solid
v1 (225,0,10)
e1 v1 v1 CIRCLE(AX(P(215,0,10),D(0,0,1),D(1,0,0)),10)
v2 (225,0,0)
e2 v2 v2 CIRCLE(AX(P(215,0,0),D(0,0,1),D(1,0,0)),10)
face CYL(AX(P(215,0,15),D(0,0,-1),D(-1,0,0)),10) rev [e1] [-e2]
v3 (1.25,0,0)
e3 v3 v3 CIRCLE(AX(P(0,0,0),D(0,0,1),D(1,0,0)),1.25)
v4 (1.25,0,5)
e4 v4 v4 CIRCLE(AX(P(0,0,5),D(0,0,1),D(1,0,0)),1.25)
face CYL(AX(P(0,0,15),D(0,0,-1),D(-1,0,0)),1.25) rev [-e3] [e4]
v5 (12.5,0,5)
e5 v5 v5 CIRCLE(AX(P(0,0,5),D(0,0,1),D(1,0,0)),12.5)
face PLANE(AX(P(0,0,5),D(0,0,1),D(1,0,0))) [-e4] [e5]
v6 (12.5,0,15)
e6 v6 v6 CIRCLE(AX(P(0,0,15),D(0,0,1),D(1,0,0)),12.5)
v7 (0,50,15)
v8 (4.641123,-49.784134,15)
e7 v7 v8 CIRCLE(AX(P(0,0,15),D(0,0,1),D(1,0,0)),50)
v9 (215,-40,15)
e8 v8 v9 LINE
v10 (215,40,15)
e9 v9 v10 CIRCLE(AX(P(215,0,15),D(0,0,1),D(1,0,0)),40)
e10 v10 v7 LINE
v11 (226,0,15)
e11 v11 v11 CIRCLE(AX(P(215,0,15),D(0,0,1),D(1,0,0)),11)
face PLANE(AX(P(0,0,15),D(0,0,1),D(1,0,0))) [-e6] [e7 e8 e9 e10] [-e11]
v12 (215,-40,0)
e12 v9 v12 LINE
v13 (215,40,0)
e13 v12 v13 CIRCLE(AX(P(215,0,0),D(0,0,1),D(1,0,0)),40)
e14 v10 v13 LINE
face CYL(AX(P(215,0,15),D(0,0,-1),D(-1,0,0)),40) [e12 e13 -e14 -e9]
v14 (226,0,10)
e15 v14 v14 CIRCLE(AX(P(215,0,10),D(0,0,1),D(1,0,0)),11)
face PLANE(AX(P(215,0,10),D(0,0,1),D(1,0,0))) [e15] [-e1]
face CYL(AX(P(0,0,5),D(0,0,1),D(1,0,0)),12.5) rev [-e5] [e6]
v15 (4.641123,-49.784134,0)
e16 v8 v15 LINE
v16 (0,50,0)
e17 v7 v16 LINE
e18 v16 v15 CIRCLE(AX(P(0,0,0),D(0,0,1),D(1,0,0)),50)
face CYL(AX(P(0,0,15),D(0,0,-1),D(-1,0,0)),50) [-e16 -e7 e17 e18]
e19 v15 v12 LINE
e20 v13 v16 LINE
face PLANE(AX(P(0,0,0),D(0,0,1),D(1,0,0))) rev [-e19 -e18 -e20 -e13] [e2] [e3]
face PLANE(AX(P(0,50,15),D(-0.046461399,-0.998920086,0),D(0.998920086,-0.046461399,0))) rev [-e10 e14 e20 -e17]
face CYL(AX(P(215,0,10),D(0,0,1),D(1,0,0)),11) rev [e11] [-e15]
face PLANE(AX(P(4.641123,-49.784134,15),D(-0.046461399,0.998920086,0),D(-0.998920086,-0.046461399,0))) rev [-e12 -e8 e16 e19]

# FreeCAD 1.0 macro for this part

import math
import FreeCAD as App
import Part
import Sketcher

V = App.Vector
Q = App.Units.Quantity

doc = App.newDocument("Part")
body = doc.addObject("PartDesign::Body", "Body")

# Sketch on XY plane
sketch1 = doc.addObject("Sketcher::SketchObject", "Sketch")
body.addObject(sketch1)
sketch1.AttachmentSupport = (doc.XY_Plane, [""])
sketch1.MapMode = "FlatFace"
sketch1.addGeometry([
    Part.LineSegment(V(215, 40, 0), V(0, 50, 0)),  # 0
    Part.ArcOfCircle(Part.Circle(V(0, 0, 0), V(0, 0, 1), 50), math.radians(90), math.radians(275)),  # 1
    Part.LineSegment(V(4.6, -49.8, 0), V(215, -40, 0)),  # 2
    Part.ArcOfCircle(Part.Circle(V(215, 0, 0), V(0, 0, 1), 40), math.radians(-90), math.radians(90)),  # 3
    Part.Circle(V(215, 0, 0), V(0, 0, 1), 10),  # 4
    Part.Circle(V(0, 0, 0), V(0, 0, 1), 1.2),  # 5
], False)
sketch1.addConstraint([
    Sketcher.Constraint("Coincident", 0, 2, 1, 1),
    Sketcher.Constraint("Coincident", 1, 2, 2, 1),
    Sketcher.Constraint("Coincident", 2, 2, 3, 1),
    Sketcher.Constraint("Coincident", 3, 2, 0, 1),
    Sketcher.Constraint("Coincident", 1, 3, -1, 1),
    Sketcher.Constraint("Coincident", 5, 3, -1, 1),
    Sketcher.Constraint("Coincident", 4, 3, 3, 3),
    Sketcher.Constraint("Symmetric", 2, 2, 3, 2, -1),
    Sketcher.Constraint("PointOnObject", 0, 2, -2),
    Sketcher.Constraint("Vertical", 4, 3, 2, 2),
    Sketcher.Constraint("Diameter", 4, Q("20 mm")),
    Sketcher.Constraint("Radius", 1, Q("50 mm")),
    Sketcher.Constraint("Radius", 3, Q("40 mm")),
    Sketcher.Constraint("Diameter", 5, Q("2.5 mm")),
    Sketcher.Constraint("DistanceX", -1, 1, 3, 3, Q("215 mm")),
    Sketcher.Constraint("Distance", 2, Q("210.586293 mm")),
])
pad1 = doc.addObject("PartDesign::Pad", "Pad")
body.addObject(pad1)
pad1.Profile = sketch1
pad1.Length = 15

# Sketch on XY plane
sketch2 = doc.addObject("Sketcher::SketchObject", "Sketch001")
body.addObject(sketch2)
sketch2.AttachmentSupport = (doc.XY_Plane, [""])
sketch2.MapMode = "FlatFace"
sketch2.AttachmentOffset = App.Placement(V(0, 0, 15), App.Rotation())
sketch2.addGeometry(Part.Circle(V(0, 0, 0), V(0, 0, 1), 12), False)
sketch2.addConstraint([
    Sketcher.Constraint("Coincident", 0, 3, -1, 1),
    Sketcher.Constraint("Diameter", 0, Q("25 mm")),
])
pocket1 = doc.addObject("PartDesign::Pocket", "Pocket")
body.addObject(pocket1)
pocket1.Profile = sketch2
pocket1.Length = 10

# Sketch on XY plane
sketch3 = doc.addObject("Sketcher::SketchObject", "Sketch002")
body.addObject(sketch3)
sketch3.AttachmentSupport = (doc.XY_Plane, [""])
sketch3.MapMode = "FlatFace"
sketch3.AttachmentOffset = App.Placement(V(0, 0, 15), App.Rotation())
sketch3.addGeometry(Part.Circle(V(215, 0, 0), V(0, 0, 1), 11), False)
sketch3.addConstraint([
    Sketcher.Constraint("PointOnObject", 0, 3, -1),
    Sketcher.Constraint("Diameter", 0, Q("22 mm")),
    Sketcher.Constraint("DistanceX", -1, 1, 0, 3, Q("215 mm")),
])
pocket2 = doc.addObject("PartDesign::Pocket", "Pocket001")
body.addObject(pocket2)
pocket2.Profile = sketch3
pocket2.Length = 5

doc.recompute()
